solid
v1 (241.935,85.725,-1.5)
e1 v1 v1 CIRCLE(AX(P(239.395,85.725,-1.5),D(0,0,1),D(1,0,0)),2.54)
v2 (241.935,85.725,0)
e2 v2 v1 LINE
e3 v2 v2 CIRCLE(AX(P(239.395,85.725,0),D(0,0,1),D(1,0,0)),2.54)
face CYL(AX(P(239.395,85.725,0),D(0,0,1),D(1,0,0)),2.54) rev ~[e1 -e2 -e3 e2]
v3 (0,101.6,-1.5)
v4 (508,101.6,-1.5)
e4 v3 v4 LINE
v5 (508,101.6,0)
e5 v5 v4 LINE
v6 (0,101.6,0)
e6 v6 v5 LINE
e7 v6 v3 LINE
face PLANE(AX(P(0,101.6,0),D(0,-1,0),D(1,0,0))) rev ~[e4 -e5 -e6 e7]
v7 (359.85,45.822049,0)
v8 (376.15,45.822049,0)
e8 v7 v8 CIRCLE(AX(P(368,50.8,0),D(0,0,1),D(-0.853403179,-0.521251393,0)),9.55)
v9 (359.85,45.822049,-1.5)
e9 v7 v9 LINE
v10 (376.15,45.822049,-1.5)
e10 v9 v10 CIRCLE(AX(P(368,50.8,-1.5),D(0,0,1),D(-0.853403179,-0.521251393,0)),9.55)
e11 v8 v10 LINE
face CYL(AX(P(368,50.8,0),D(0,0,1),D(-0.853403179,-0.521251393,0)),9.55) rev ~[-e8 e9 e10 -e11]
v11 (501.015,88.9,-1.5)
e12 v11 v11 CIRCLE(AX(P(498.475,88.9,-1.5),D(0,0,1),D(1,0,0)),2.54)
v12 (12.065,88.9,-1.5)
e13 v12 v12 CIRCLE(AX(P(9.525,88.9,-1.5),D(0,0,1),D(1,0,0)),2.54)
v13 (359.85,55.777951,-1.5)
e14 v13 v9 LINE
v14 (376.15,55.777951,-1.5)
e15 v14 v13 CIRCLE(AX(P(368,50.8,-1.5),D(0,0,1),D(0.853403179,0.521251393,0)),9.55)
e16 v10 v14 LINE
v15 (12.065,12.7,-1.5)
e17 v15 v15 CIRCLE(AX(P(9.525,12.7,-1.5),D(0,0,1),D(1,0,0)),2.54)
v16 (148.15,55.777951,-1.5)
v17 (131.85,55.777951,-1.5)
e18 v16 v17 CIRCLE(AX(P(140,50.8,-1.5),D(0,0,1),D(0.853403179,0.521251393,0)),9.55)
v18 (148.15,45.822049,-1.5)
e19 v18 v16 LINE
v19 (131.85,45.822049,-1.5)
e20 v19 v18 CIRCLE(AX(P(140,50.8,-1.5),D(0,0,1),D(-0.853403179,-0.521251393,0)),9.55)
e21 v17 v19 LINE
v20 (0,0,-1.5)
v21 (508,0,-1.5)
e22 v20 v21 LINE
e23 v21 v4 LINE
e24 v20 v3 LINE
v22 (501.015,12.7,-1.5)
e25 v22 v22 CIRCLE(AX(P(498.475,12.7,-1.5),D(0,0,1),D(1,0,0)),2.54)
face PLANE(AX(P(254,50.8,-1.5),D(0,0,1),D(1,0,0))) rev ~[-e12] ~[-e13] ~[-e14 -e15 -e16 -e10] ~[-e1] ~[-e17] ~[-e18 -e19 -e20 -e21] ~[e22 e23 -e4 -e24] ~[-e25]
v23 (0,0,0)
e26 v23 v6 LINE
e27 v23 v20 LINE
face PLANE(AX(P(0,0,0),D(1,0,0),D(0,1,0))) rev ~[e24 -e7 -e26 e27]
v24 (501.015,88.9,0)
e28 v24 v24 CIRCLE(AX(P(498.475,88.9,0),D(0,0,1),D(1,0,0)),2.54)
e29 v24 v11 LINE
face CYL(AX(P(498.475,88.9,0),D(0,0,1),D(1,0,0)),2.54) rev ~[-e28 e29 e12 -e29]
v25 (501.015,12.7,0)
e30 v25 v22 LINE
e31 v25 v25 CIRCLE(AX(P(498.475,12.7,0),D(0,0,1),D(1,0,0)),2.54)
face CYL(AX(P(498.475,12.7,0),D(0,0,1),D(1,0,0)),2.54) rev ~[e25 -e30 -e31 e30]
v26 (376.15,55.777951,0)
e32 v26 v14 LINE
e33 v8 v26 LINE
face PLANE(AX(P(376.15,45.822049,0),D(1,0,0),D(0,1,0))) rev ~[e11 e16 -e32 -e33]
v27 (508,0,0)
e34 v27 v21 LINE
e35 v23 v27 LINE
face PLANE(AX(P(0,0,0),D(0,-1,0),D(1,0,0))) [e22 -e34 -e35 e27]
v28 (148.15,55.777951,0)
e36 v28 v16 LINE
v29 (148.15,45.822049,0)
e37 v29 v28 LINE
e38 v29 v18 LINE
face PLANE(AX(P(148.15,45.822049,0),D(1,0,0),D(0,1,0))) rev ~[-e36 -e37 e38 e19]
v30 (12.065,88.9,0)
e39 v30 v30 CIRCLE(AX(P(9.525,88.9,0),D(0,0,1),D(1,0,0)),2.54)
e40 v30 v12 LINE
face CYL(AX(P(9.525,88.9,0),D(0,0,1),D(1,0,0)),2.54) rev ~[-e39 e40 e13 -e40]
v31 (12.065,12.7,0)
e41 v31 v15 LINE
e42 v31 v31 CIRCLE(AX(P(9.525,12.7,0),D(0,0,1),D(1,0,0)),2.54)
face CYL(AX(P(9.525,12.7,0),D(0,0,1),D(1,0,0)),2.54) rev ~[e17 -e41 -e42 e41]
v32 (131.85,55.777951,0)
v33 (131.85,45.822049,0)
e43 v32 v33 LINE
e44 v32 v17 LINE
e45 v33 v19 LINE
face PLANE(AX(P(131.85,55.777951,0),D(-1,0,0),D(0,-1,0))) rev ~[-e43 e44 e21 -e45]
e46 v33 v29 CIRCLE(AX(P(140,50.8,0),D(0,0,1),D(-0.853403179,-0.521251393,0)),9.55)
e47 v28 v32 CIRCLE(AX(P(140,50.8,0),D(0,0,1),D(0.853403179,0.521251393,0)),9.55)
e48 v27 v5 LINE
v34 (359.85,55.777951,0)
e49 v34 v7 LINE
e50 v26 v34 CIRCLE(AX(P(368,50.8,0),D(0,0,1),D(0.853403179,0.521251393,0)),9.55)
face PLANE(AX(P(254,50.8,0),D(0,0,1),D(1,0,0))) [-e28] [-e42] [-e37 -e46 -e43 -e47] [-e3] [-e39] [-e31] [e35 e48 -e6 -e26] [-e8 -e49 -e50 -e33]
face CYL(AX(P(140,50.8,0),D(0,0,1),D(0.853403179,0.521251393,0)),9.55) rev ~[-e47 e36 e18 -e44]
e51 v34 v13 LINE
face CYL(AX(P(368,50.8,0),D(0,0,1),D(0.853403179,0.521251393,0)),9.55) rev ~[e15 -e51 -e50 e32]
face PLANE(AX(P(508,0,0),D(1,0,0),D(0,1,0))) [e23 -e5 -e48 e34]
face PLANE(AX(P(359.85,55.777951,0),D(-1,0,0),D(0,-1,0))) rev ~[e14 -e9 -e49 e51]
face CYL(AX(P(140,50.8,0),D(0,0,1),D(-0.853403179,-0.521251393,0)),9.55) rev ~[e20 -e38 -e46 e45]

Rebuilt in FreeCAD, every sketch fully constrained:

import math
import FreeCAD as App
import Part
import Sketcher
from FreeCAD import Vector
Q = App.Units.Quantity

doc = App.newDocument("Part")
body = doc.addObject("PartDesign::Body", "Body")

# Sketch on XY plane
sketch1 = doc.addObject("Sketcher::SketchObject", "Sketch")
body.addObject(sketch1)
sketch1.AttachmentSupport = (doc.XY_Plane, [""])
sketch1.MapMode = "FlatFace"
sketch1.addGeometry([
    Part.LineSegment(Vector(0, 101.6, 0), Vector(0, 0, 0)),  # 0
    Part.LineSegment(Vector(0, 0, 0), Vector(508, 0, 0)),  # 1
    Part.LineSegment(Vector(508, 0, 0), Vector(508, 101.6, 0)),  # 2
    Part.LineSegment(Vector(508, 101.6, 0), Vector(0, 101.6, 0)),  # 3
    Part.Circle(Vector(9.525, 12.7, 0), Vector(0, 0, 1), 2.54),  # 4
    Part.Circle(Vector(498.475, 12.7, 0), Vector(0, 0, 1), 2.54),  # 5
    Part.Circle(Vector(9.525, 88.9, 0), Vector(0, 0, 1), 2.54),  # 6
    Part.Circle(Vector(239.395, 85.725, 0), Vector(0, 0, 1), 2.54),  # 7
    Part.Circle(Vector(498.475, 88.9, 0), Vector(0, 0, 1), 2.54),  # 8
], False)
sketch1.addConstraint([
    Sketcher.Constraint("Coincident", 0, 2, 1, 1),
    Sketcher.Constraint("Coincident", 1, 2, 2, 1),
    Sketcher.Constraint("Coincident", 2, 2, 3, 1),
    Sketcher.Constraint("Coincident", 3, 2, 0, 1),
    Sketcher.Constraint("Vertical", 0),
    Sketcher.Constraint("Horizontal", 1),
    Sketcher.Constraint("Vertical", 2),
    Sketcher.Constraint("Horizontal", 3),
    Sketcher.Constraint("Coincident", 0, 2, -1, 1),
    Sketcher.Constraint("Equal", 4, 5),
    Sketcher.Constraint("Equal", 5, 6),
    Sketcher.Constraint("Equal", 6, 7),
    Sketcher.Constraint("Equal", 7, 8),
    Sketcher.Constraint("Horizontal", 4, 3, 5, 3),
    Sketcher.Constraint("Horizontal", 6, 3, 8, 3),
    Sketcher.Constraint("Vertical", 4, 3, 6, 3),
    Sketcher.Constraint("Vertical", 5, 3, 8, 3),
    Sketcher.Constraint("Diameter", 4, Q("5.08 mm")),
    Sketcher.Constraint("DistanceX", 1, 1, 1, 2, Q("508 mm")),
    Sketcher.Constraint("DistanceY", 0, 2, 0, 1, Q("101.6 mm")),
    Sketcher.Constraint("DistanceY", -1, 1, 4, 3, Q("12.7 mm")),
    Sketcher.Constraint("DistanceY", -1, 1, 6, 3, Q("88.9 mm")),
    Sketcher.Constraint("DistanceX", 4, 3, 5, 3, Q("488.95 mm")),
    Sketcher.Constraint("DistanceX", 6, 3, 7, 3, Q("229.87 mm")),
    Sketcher.Constraint("DistanceX", -1, 1, 4, 3, Q("9.525 mm")),
    Sketcher.Constraint("DistanceY", -1, 1, 7, 3, Q("85.725 mm")),
])
pad1 = doc.addObject("PartDesign::Pad", "Pad")
body.addObject(pad1)
pad1.Profile = sketch1
pad1.Length = 1.5
pad1.Reversed = True

# Sketch on XY plane
sketch2 = doc.addObject("Sketcher::SketchObject", "Sketch001")
body.addObject(sketch2)
sketch2.AttachmentSupport = (doc.XY_Plane, [""])
sketch2.MapMode = "FlatFace"
sketch2.addGeometry([
    Part.LineSegment(Vector(148.15, 45.822049, 0), Vector(148.15, 55.777951, 0)),  # 0
    Part.ArcOfCircle(Part.Circle(Vector(140, 50.8, 0), Vector(0, 0, 1), 9.55), math.radians(31.41623), math.radians(148.58377)),  # 1
    Part.LineSegment(Vector(131.85, 55.777951, 0), Vector(131.85, 45.822049, 0)),  # 2
    Part.ArcOfCircle(Part.Circle(Vector(140, 50.8, 0), Vector(0, 0, 1), 9.55), math.radians(-148.58377), math.radians(-31.41623)),  # 3
    Part.LineSegment(Vector(376.15, 45.822049, 0), Vector(376.15, 55.777951, 0)),  # 4
    Part.ArcOfCircle(Part.Circle(Vector(368, 50.8, 0), Vector(0, 0, 1), 9.55), math.radians(31.41623), math.radians(148.58377)),  # 5
    Part.LineSegment(Vector(359.85, 55.777951, 0), Vector(359.85, 45.822049, 0)),  # 6
    Part.ArcOfCircle(Part.Circle(Vector(368, 50.8, 0), Vector(0, 0, 1), 9.55), math.radians(-148.58377), math.radians(-31.41623)),  # 7
], False)
sketch2.addConstraint([
    Sketcher.Constraint("Coincident", 0, 2, 1, 1),
    Sketcher.Constraint("Coincident", 1, 2, 2, 1),
    Sketcher.Constraint("Coincident", 2, 2, 3, 1),
    Sketcher.Constraint("Coincident", 3, 2, 0, 1),
    Sketcher.Constraint("Coincident", 4, 2, 5, 1),
    Sketcher.Constraint("Coincident", 5, 2, 6, 1),
    Sketcher.Constraint("Coincident", 6, 2, 7, 1),
    Sketcher.Constraint("Coincident", 7, 2, 4, 1),
    Sketcher.Constraint("Vertical", 0),
    Sketcher.Constraint("Vertical", 2),
    Sketcher.Constraint("Vertical", 4),
    Sketcher.Constraint("Vertical", 6),
    Sketcher.Constraint("Coincident", 3, 3, 1, 3),
    Sketcher.Constraint("Coincident", 7, 3, 5, 3),
    Sketcher.Constraint("Equal", 1, 3),
    Sketcher.Constraint("Equal", 3, 5),
    Sketcher.Constraint("Equal", 5, 7),
    Sketcher.Constraint("Horizontal", 3, 3, 5, 3),
    Sketcher.Constraint("Horizontal", 0, 2, 1, 2),
    Sketcher.Constraint("Horizontal", 1, 2, 4, 2),
    Sketcher.Constraint("Horizontal", 4, 2, 5, 2),
    Sketcher.Constraint("Radius", 1, Q("9.55 mm")),
    Sketcher.Constraint("DistanceX", -1, 1, 1, 3, Q("140 mm")),
    Sketcher.Constraint("DistanceX", -1, 1, 5, 3, Q("368 mm")),
    Sketcher.Constraint("DistanceY", -1, 1, 1, 3, Q("50.8 mm")),
    Sketcher.Constraint("DistanceX", 1, 2, 0, 2, Q("16.3 mm")),
])
pocket1 = doc.addObject("PartDesign::Pocket", "Pocket")
body.addObject(pocket1)
pocket1.Profile = sketch2
pocket1.Length = 25

doc.recompute()
